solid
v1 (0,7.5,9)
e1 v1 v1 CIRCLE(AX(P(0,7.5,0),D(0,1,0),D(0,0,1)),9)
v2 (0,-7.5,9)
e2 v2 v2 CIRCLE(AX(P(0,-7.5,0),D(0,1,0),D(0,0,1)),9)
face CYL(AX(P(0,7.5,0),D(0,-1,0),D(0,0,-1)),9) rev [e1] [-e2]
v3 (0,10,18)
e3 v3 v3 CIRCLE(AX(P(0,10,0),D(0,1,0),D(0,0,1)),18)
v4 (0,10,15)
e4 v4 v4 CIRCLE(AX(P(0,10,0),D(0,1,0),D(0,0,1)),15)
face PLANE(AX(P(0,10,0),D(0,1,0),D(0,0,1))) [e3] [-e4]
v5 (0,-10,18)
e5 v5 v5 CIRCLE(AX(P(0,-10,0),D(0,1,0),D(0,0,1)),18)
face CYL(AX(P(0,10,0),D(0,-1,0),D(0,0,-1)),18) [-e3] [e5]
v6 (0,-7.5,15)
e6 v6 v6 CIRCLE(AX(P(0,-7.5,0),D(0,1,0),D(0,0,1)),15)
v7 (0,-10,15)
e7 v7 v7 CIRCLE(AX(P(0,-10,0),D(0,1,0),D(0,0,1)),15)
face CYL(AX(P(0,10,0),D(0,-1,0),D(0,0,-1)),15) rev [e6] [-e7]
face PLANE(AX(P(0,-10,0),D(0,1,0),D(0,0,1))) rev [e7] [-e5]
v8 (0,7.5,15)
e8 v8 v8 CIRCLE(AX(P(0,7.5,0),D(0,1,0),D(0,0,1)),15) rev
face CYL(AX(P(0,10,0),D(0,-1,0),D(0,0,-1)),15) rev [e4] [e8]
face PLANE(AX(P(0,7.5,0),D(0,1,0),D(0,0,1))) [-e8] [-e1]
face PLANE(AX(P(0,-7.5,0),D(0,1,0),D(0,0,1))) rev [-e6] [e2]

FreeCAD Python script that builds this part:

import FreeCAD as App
import Part
import Sketcher

doc = App.newDocument("Part")
body = doc.addObject("PartDesign::Body", "Body")

# Sketch on XZ plane
sketch1 = body.newObject("Sketcher::SketchObject", "Sketch")
sketch1.AttachmentSupport = (doc.getObject("XZ_Plane"), [""])
sketch1.MapMode = "FlatFace"
sketch1.addGeometry([
    Part.Circle(App.Vector(0, 0, 0), App.Vector(0, 0, 1), 15),
    Part.Circle(App.Vector(0, 0, 0), App.Vector(0, 0, 1), 9),
], False)
sketch1.addConstraint([
    Sketcher.Constraint("Coincident", 0, 3, -1, 1),
    Sketcher.Constraint("Coincident", 1, 3, -1, 1),
    Sketcher.Constraint("Diameter", 0, 30.0),
    Sketcher.Constraint("Diameter", 1, 18.0),
])
pad1 = body.newObject("PartDesign::Pad", "Pad")
pad1.Profile = sketch1
pad1.Length = 15
pad1.Midplane = True

# Sketch on XZ plane
sketch2 = body.newObject("Sketcher::SketchObject", "Sketch001")
sketch2.AttachmentSupport = (doc.getObject("XZ_Plane"), [""])
sketch2.MapMode = "FlatFace"
sketch2.addGeometry([
    Part.Circle(App.Vector(0, 0, 0), App.Vector(0, 0, 1), 18),
    Part.Circle(App.Vector(0, 0, 0), App.Vector(0, 0, 1), 15),
], False)
sketch2.addConstraint([
    Sketcher.Constraint("Coincident", 0, 3, -1, 1),
    Sketcher.Constraint("Coincident", 1, 3, -1, 1),
    Sketcher.Constraint("Diameter", 0, 36.0),
    Sketcher.Constraint("Diameter", 1, 30.0),
])
pad2 = body.newObject("PartDesign::Pad", "Pad001")
pad2.Profile = sketch2
pad2.Length = 20
pad2.Midplane = True

doc.recompute()
